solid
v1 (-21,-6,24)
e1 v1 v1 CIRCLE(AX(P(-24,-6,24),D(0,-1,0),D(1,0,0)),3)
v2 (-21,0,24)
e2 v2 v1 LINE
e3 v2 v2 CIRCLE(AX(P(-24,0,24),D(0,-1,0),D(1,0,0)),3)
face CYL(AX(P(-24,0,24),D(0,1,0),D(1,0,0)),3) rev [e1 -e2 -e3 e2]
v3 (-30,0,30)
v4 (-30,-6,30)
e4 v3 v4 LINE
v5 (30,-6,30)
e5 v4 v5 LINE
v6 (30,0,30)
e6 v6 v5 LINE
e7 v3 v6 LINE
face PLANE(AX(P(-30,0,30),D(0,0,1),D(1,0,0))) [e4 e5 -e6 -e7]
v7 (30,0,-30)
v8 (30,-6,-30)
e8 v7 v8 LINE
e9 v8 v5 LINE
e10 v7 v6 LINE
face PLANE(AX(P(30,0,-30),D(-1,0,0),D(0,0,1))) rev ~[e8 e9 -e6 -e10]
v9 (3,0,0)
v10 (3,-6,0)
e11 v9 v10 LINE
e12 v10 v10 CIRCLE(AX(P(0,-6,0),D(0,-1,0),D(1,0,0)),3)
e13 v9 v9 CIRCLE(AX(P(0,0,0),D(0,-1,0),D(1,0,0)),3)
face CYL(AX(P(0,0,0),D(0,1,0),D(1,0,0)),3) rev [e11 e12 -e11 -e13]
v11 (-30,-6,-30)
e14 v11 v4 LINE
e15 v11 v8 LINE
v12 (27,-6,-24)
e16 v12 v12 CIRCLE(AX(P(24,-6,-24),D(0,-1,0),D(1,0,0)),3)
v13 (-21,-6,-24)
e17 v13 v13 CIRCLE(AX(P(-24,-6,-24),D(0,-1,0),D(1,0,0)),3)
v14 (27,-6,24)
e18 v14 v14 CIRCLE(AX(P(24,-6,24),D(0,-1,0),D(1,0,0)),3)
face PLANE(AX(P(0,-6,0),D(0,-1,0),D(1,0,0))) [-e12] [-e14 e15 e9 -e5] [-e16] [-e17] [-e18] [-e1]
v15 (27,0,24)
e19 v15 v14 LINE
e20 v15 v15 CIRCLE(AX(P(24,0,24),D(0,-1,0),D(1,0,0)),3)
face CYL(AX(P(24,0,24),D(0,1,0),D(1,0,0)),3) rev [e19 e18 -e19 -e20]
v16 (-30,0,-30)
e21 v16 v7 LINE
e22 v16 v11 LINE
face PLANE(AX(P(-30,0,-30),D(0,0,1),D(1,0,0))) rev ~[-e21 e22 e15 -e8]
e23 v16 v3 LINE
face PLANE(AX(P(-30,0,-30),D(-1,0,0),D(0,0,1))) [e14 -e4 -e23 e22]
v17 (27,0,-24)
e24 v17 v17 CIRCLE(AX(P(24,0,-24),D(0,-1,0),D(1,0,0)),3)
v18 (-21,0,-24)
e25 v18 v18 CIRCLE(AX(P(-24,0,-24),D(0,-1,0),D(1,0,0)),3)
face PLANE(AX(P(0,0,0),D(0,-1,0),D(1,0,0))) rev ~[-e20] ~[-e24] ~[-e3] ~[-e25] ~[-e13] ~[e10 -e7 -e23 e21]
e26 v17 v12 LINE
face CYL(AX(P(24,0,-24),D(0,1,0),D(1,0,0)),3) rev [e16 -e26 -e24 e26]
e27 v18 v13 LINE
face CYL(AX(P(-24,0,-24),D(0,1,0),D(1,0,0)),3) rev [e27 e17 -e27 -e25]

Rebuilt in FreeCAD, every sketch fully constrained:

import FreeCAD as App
import Part
import Sketcher
Q = App.Units.Quantity


def add_polygon(sketch, points):
    """Adds a closed chain of lines whose ends are joined by coincident constraints."""
    first, n = sketch.GeometryCount, len(points)
    for a, b in zip(points, points[1:] + points[:1]):
        sketch.addGeometry(Part.LineSegment(App.Vector(*a, 0), App.Vector(*b, 0)), False)
    for i in range(n):
        sketch.addConstraint(Sketcher.Constraint("Coincident", first + i, 2, first + (i + 1) % n, 1))

doc = App.newDocument("Part")
params = doc.addObject("Spreadsheet::Sheet", "Params")
for row, (alias, value) in enumerate([
    ("sketch1_diameter", "6 mm"),
    ("sketch1_width", "60 mm"),
    ("pad1_length", "6 mm"),
], start=1):
    params.set(f"A{row}", alias)
    params.set(f"B{row}", "=" + value)
    params.setAlias(f"B{row}", alias)

body = doc.addObject("PartDesign::Body", "Body")

sketch1 = doc.addObject("Sketcher::SketchObject", "Sketch")
body.addObject(sketch1)
sketch1.AttachmentSupport = (doc.XZ_Plane, [""])
sketch1.MapMode = "FlatFace"
add_polygon(sketch1, [(-30, 30), (-30, -30), (30, -30), (30, 30)])
sketch1.addGeometry(Part.Circle(App.Vector(-24, -24, 0), App.Vector(0, 0, 1), 3), False)
sketch1.addGeometry(Part.Circle(App.Vector(24, -24, 0), App.Vector(0, 0, 1), 3), False)
sketch1.addGeometry(Part.Circle(App.Vector(-24, 24, 0), App.Vector(0, 0, 1), 3), False)
sketch1.addGeometry(Part.Circle(App.Vector(0, 0, 0), App.Vector(0, 0, 1), 3), False)
sketch1.addGeometry(Part.Circle(App.Vector(24, 24, 0), App.Vector(0, 0, 1), 3), False)
sketch1.addConstraint([
    Sketcher.Constraint("Vertical", 0),
    Sketcher.Constraint("Horizontal", 1),
    Sketcher.Constraint("Vertical", 2),
    Sketcher.Constraint("Horizontal", 3),
    Sketcher.Constraint("Coincident", 7, 3, -1, 1),
    Sketcher.Constraint("Equal", 4, 5),
    Sketcher.Constraint("Equal", 5, 6),
    Sketcher.Constraint("Equal", 6, 7),
    Sketcher.Constraint("Equal", 7, 8),
    Sketcher.Constraint("Symmetric", 5, 3, 6, 3, -1, 1),
    Sketcher.Constraint("Symmetric", 4, 3, 8, 3, -1, 1),
    Sketcher.Constraint("Symmetric", 0, 2, 2, 2, -1, 1),
    Sketcher.Constraint("Symmetric", 4, 3, 5, 3, -2),
    Sketcher.Constraint("Equal", 3, 0),
    Sketcher.Constraint("Diameter", 4, Q("6 mm")),
    Sketcher.Constraint("DistanceX", 1, 1, 1, 2, Q("60 mm")),
    Sketcher.Constraint("DistanceX", 4, 3, -1, 1, Q("24 mm")),
    Sketcher.Constraint("DistanceY", 4, 3, -1, 1, Q("24 mm")),
])
sketch1.setExpression("Constraints[18]", "Params.sketch1_diameter")
sketch1.setExpression("Constraints[19]", "Params.sketch1_width")
pad1 = doc.addObject("PartDesign::Pad", "Pad")
body.addObject(pad1)
pad1.Profile = sketch1
pad1.setExpression("Length", "Params.pad1_length")

doc.recompute()
